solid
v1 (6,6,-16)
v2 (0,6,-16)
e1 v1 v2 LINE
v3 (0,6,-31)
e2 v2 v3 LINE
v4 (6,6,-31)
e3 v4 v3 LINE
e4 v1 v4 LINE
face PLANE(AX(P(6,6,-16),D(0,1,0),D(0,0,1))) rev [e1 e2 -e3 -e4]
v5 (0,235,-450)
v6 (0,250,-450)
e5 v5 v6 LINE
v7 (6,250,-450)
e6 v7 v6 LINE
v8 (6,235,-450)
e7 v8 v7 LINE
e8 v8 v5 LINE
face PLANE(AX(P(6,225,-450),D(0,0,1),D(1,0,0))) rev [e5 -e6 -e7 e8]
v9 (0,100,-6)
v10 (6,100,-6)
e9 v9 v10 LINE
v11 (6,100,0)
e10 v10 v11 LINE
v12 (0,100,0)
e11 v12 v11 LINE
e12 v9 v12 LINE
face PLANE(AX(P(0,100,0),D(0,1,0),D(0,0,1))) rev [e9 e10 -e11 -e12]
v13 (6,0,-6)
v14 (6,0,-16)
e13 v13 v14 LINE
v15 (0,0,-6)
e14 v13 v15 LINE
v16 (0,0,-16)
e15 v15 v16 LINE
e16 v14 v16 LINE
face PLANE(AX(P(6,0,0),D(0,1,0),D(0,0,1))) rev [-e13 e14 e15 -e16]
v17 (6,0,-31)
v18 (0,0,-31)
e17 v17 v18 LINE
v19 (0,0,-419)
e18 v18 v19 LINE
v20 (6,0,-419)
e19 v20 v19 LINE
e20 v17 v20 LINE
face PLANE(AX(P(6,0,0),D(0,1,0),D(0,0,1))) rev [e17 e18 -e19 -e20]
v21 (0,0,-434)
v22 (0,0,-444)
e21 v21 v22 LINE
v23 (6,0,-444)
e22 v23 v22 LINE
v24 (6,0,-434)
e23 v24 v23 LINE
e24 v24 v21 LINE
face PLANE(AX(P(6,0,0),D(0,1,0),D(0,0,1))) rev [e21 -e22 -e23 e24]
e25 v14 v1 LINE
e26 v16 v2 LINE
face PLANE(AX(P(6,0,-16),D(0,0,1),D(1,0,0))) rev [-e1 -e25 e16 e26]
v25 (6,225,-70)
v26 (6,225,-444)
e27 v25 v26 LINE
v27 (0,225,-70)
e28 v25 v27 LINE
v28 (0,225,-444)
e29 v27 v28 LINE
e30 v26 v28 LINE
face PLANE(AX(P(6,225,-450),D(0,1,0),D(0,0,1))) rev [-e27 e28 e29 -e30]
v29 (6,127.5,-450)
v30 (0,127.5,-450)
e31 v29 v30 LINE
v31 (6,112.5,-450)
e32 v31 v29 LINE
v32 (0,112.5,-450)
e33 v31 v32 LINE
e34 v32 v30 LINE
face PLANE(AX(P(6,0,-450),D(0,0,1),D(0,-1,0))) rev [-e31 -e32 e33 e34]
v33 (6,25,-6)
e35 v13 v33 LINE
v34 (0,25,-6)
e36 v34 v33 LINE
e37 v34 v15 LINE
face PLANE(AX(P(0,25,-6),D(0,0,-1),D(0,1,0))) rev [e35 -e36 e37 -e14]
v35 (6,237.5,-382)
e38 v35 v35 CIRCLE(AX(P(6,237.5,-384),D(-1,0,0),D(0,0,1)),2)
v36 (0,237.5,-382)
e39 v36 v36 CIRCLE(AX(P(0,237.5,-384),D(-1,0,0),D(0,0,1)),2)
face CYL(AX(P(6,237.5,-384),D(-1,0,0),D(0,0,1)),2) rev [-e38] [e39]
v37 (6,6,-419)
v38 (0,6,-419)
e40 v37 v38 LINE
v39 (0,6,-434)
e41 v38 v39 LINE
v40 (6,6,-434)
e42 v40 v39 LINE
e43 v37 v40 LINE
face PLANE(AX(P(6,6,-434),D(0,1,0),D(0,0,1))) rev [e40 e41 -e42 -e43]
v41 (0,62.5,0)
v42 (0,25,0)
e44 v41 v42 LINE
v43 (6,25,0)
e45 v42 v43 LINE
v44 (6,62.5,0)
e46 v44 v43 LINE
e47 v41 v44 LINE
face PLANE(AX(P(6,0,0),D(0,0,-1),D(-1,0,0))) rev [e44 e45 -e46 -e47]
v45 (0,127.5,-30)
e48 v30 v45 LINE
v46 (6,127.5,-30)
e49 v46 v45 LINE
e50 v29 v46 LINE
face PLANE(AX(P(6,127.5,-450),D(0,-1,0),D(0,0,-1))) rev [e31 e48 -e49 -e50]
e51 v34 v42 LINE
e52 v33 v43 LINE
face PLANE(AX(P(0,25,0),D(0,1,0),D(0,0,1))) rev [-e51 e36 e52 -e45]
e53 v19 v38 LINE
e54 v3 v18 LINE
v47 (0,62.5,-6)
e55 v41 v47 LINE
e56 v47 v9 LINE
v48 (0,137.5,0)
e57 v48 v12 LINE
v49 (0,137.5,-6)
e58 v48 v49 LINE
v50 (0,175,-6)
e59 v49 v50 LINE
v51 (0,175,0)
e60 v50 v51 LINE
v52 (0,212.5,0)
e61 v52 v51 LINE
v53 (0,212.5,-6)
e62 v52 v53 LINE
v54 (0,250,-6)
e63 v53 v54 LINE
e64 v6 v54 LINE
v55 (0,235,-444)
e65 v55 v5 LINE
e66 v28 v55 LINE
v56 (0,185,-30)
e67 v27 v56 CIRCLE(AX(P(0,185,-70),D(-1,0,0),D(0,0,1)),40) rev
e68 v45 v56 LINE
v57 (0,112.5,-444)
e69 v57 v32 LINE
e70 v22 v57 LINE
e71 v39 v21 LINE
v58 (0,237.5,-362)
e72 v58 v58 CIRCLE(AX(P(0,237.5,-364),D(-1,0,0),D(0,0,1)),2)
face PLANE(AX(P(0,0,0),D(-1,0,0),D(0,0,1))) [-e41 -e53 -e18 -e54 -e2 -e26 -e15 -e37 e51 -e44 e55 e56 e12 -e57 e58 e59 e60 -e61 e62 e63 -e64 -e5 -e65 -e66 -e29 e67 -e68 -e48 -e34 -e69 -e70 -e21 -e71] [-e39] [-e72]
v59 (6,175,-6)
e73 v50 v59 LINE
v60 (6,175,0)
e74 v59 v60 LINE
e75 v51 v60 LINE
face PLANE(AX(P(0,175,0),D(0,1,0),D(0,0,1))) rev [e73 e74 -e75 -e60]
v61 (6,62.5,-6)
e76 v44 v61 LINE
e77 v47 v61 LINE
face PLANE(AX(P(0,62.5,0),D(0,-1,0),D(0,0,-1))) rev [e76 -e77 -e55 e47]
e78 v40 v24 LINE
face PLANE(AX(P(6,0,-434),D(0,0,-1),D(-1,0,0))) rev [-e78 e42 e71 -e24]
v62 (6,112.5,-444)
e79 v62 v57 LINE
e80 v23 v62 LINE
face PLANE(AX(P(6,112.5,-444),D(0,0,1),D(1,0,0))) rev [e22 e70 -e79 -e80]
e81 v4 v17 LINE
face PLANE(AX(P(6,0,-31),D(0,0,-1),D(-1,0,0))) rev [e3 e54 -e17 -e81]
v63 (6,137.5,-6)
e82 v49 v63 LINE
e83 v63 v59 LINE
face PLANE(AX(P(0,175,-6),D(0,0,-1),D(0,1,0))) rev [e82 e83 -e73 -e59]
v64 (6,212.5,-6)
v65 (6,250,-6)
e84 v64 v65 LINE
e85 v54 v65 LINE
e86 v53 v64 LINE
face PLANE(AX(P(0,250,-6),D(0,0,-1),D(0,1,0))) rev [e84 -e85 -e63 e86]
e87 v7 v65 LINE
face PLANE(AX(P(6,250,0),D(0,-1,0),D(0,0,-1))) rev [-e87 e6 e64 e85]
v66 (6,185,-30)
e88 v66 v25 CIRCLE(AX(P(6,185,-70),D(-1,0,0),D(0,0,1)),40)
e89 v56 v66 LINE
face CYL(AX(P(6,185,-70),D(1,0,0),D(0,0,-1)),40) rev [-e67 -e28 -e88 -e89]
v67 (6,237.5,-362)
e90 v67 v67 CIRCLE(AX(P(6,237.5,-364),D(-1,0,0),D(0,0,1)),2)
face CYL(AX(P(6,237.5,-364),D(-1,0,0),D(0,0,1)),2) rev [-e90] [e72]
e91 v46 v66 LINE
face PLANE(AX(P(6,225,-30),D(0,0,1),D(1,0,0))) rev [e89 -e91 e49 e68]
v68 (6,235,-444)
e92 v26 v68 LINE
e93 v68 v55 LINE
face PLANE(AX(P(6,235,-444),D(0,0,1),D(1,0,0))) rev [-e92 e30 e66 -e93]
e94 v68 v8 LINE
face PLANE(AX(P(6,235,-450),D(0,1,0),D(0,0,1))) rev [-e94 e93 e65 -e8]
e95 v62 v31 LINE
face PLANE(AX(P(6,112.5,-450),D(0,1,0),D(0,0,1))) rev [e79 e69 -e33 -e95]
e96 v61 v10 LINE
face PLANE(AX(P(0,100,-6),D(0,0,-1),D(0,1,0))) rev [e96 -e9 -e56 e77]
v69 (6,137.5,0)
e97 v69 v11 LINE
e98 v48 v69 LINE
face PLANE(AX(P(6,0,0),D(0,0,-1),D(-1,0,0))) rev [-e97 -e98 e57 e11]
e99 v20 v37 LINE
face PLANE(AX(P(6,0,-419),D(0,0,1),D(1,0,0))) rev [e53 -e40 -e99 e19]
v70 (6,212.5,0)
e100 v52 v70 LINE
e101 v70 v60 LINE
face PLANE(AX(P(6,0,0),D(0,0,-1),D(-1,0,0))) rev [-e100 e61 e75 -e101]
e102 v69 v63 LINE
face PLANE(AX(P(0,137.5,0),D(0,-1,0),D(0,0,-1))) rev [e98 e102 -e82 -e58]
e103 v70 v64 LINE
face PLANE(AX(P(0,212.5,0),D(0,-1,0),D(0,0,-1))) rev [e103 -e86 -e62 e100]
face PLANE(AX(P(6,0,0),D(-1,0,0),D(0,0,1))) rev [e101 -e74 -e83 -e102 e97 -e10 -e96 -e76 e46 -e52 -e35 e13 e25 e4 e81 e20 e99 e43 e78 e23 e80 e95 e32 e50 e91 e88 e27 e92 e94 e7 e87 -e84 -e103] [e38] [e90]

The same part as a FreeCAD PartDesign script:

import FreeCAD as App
import Part
import Sketcher


def edges_at(feature, points):
    """Names of the edges that pass closest to the given points."""
    edges = feature.Shape.Edges
    near = lambda p: min(range(len(edges)), key=lambda i: edges[i].distToShape(Part.Vertex(*p))[0])
    return sorted({f"Edge{near(p) + 1}" for p in points})

doc = App.newDocument("Part")
body = doc.addObject("PartDesign::Body", "Body")

# Sketch on YZ plane
sketch1 = doc.addObject("Sketcher::SketchObject", "Sketch")
body.addObject(sketch1)
sketch1.AttachmentSupport = (doc.YZ_Plane, [""])
sketch1.MapMode = "FlatFace"
sketch1.addGeometry(Part.LineSegment(App.Vector(225, -450, 0), App.Vector(250, -450, 0)), False)
sketch1.addGeometry(Part.LineSegment(App.Vector(250, -450, 0), App.Vector(250, 0, 0)), False)
sketch1.addGeometry(Part.LineSegment(App.Vector(250, 0, 0), App.Vector(0, 0, 0)), False)
sketch1.addGeometry(Part.LineSegment(App.Vector(0, 0, 0), App.Vector(0, -450, 0)), False)
sketch1.addGeometry(Part.LineSegment(App.Vector(0, -450, 0), App.Vector(128, -450, 0)), False)
sketch1.addGeometry(Part.LineSegment(App.Vector(128, -450, 0), App.Vector(128, -30, 0)), False)
sketch1.addGeometry(Part.LineSegment(App.Vector(128, -30, 0), App.Vector(225, -30, 0)), False)
sketch1.addGeometry(Part.LineSegment(App.Vector(225, -30, 0), App.Vector(225, -450, 0)), False)
sketch1.addConstraint(Sketcher.Constraint("Coincident", 0, 2, 1, 1))
sketch1.addConstraint(Sketcher.Constraint("Coincident", 1, 2, 2, 1))
sketch1.addConstraint(Sketcher.Constraint("Coincident", 2, 2, 3, 1))
sketch1.addConstraint(Sketcher.Constraint("Coincident", 3, 2, 4, 1))
sketch1.addConstraint(Sketcher.Constraint("Coincident", 4, 2, 5, 1))
sketch1.addConstraint(Sketcher.Constraint("Coincident", 5, 2, 6, 1))
sketch1.addConstraint(Sketcher.Constraint("Coincident", 6, 2, 7, 1))
sketch1.addConstraint(Sketcher.Constraint("Coincident", 7, 2, 0, 1))
sketch1.addConstraint(Sketcher.Constraint("Horizontal", 0))
sketch1.addConstraint(Sketcher.Constraint("Vertical", 1))
sketch1.addConstraint(Sketcher.Constraint("Horizontal", 2))
sketch1.addConstraint(Sketcher.Constraint("Vertical", 3))
sketch1.addConstraint(Sketcher.Constraint("Horizontal", 4))
sketch1.addConstraint(Sketcher.Constraint("Vertical", 5))
sketch1.addConstraint(Sketcher.Constraint("Horizontal", 6))
sketch1.addConstraint(Sketcher.Constraint("Vertical", 7))
sketch1.addConstraint(Sketcher.Constraint("Coincident", 2, 2, -1, 1))
sketch1.addConstraint(Sketcher.Constraint("Horizontal", 0, 2, 3, 2))
sketch1.addConstraint(Sketcher.Constraint("DistanceX", 0, 1, 0, 2, 25.0))
sketch1.addConstraint(Sketcher.Constraint("DistanceX", 2, 2, 2, 1, 250.0))
sketch1.addConstraint(Sketcher.Constraint("DistanceY", 1, 1, 1, 2, 450.0))
sketch1.addConstraint(Sketcher.Constraint("DistanceY", 5, 1, 5, 2, 420.0))
sketch1.addConstraint(Sketcher.Constraint("DistanceX", 4, 1, 4, 2, 127.5))
pad1 = doc.addObject("PartDesign::Pad", "Pad")
body.addObject(pad1)
pad1.Profile = sketch1
pad1.Length = 6

# Sketch on YZ plane
sketch2 = doc.addObject("Sketcher::SketchObject", "Sketch001")
body.addObject(sketch2)
sketch2.AttachmentSupport = (doc.YZ_Plane, [""])
sketch2.MapMode = "FlatFace"
sketch2.AttachmentOffset = App.Placement(App.Vector(0, 0, 6), App.Rotation())
sketch2.addGeometry(Part.LineSegment(App.Vector(250, 0, 0), App.Vector(212, 0, 0)), False)
sketch2.addGeometry(Part.LineSegment(App.Vector(212, 0, 0), App.Vector(212, -6, 0)), False)
sketch2.addGeometry(Part.LineSegment(App.Vector(212, -6, 0), App.Vector(250, -6, 0)), False)
sketch2.addGeometry(Part.LineSegment(App.Vector(250, -6, 0), App.Vector(250, 0, 0)), False)
sketch2.addConstraint(Sketcher.Constraint("Coincident", 0, 2, 1, 1))
sketch2.addConstraint(Sketcher.Constraint("Coincident", 1, 2, 2, 1))
sketch2.addConstraint(Sketcher.Constraint("Coincident", 2, 2, 3, 1))
sketch2.addConstraint(Sketcher.Constraint("Coincident", 3, 2, 0, 1))
sketch2.addConstraint(Sketcher.Constraint("Horizontal", 0))
sketch2.addConstraint(Sketcher.Constraint("Vertical", 1))
sketch2.addConstraint(Sketcher.Constraint("Horizontal", 2))
sketch2.addConstraint(Sketcher.Constraint("Vertical", 3))
sketch2.addConstraint(Sketcher.Constraint("PointOnObject", 0, 2, -1))
sketch2.addConstraint(Sketcher.Constraint("DistanceY", 1, 2, 1, 1, 6.0))
sketch2.addConstraint(Sketcher.Constraint("DistanceX", 0, 2, 0, 1, 37.5))
sketch2.addConstraint(Sketcher.Constraint("DistanceX", -1, 1, 2, 2, 250.0))
pocket1 = doc.addObject("PartDesign::Pocket", "Pocket")
body.addObject(pocket1)
pocket1.Profile = sketch2
pocket1.Length = 6
doc.recompute()

linearpattern = doc.addObject("PartDesign::LinearPattern", "LinearPattern")
body.addObject(linearpattern)
linearpattern.Originals = [pocket1]
linearpattern.Direction = (doc.Y_Axis, [""])
linearpattern.Mode = "offset"
linearpattern.Offset = 75
linearpattern.Occurrences = 4
linearpattern.Reversed = True
body.Tip = linearpattern
doc.recompute()

fillet = doc.addObject("PartDesign::Fillet", "Fillet")
body.addObject(fillet)
fillet.Base = (linearpattern, edges_at(linearpattern, [(3, 225, -30)]))
fillet.Radius = 40

# Sketch on YZ plane
sketch3 = doc.addObject("Sketcher::SketchObject", "Sketch002")
body.addObject(sketch3)
sketch3.AttachmentSupport = (doc.YZ_Plane, [""])
sketch3.MapMode = "FlatFace"
sketch3.addGeometry(Part.LineSegment(App.Vector(235, -450, 0), App.Vector(225, -450, 0)), False)
sketch3.addGeometry(Part.LineSegment(App.Vector(225, -450, 0), App.Vector(225, -444, 0)), False)
sketch3.addGeometry(Part.LineSegment(App.Vector(225, -444, 0), App.Vector(235, -444, 0)), False)
sketch3.addGeometry(Part.LineSegment(App.Vector(235, -444, 0), App.Vector(235, -450, 0)), False)
sketch3.addGeometry(Part.LineSegment(App.Vector(112, -450, 0), App.Vector(0, -450, 0)), False)
sketch3.addGeometry(Part.LineSegment(App.Vector(0, -450, 0), App.Vector(0, -444, 0)), False)
sketch3.addGeometry(Part.LineSegment(App.Vector(0, -444, 0), App.Vector(112, -444, 0)), False)
sketch3.addGeometry(Part.LineSegment(App.Vector(112, -444, 0), App.Vector(112, -450, 0)), False)
sketch3.addConstraint(Sketcher.Constraint("Coincident", 0, 2, 1, 1))
sketch3.addConstraint(Sketcher.Constraint("Coincident", 1, 2, 2, 1))
sketch3.addConstraint(Sketcher.Constraint("Coincident", 2, 2, 3, 1))
sketch3.addConstraint(Sketcher.Constraint("Coincident", 3, 2, 0, 1))
sketch3.addConstraint(Sketcher.Constraint("Coincident", 4, 2, 5, 1))
sketch3.addConstraint(Sketcher.Constraint("Coincident", 5, 2, 6, 1))
sketch3.addConstraint(Sketcher.Constraint("Coincident", 6, 2, 7, 1))
sketch3.addConstraint(Sketcher.Constraint("Coincident", 7, 2, 4, 1))
sketch3.addConstraint(Sketcher.Constraint("Horizontal", 0))
sketch3.addConstraint(Sketcher.Constraint("Vertical", 1))
sketch3.addConstraint(Sketcher.Constraint("Horizontal", 2))
sketch3.addConstraint(Sketcher.Constraint("Vertical", 3))
sketch3.addConstraint(Sketcher.Constraint("Horizontal", 4))
sketch3.addConstraint(Sketcher.Constraint("Vertical", 5))
sketch3.addConstraint(Sketcher.Constraint("Horizontal", 6))
sketch3.addConstraint(Sketcher.Constraint("Vertical", 7))
sketch3.addConstraint(Sketcher.Constraint("PointOnObject", 4, 2, -2))
sketch3.addConstraint(Sketcher.Constraint("Horizontal", 3, 2, 4, 2))
sketch3.addConstraint(Sketcher.Constraint("Horizontal", 2, 2, 5, 2))
sketch3.addConstraint(Sketcher.Constraint("DistanceX", 0, 2, 0, 1, 10.0))
sketch3.addConstraint(Sketcher.Constraint("DistanceY", 1, 1, 1, 2, 6.0))
sketch3.addConstraint(Sketcher.Constraint("DistanceX", 4, 2, 4, 1, 112.5))
sketch3.addConstraint(Sketcher.Constraint("DistanceX", -1, 1, 0, 2, 225.0))
sketch3.addConstraint(Sketcher.Constraint("DistanceY", 0, 2, -1, 1, 450.0))
pocket2 = doc.addObject("PartDesign::Pocket", "Pocket001")
body.addObject(pocket2)
pocket2.Profile = sketch3
pocket2.Type = "ThroughAll"
pocket2.Reversed = True

# Sketch on YZ plane
sketch4 = doc.addObject("Sketcher::SketchObject", "Sketch003")
body.addObject(sketch4)
sketch4.AttachmentSupport = (doc.YZ_Plane, [""])
sketch4.MapMode = "FlatFace"
sketch4.addGeometry(Part.LineSegment(App.Vector(6, -31, 0), App.Vector(0, -31, 0)), False)
sketch4.addGeometry(Part.LineSegment(App.Vector(0, -31, 0), App.Vector(0, -16, 0)), False)
sketch4.addGeometry(Part.LineSegment(App.Vector(0, -16, 0), App.Vector(6, -16, 0)), False)
sketch4.addGeometry(Part.LineSegment(App.Vector(6, -16, 0), App.Vector(6, -31, 0)), False)
sketch4.addGeometry(Part.LineSegment(App.Vector(6, -434, 0), App.Vector(0, -434, 0)), False)
sketch4.addGeometry(Part.LineSegment(App.Vector(0, -434, 0), App.Vector(0, -419, 0)), False)
sketch4.addGeometry(Part.LineSegment(App.Vector(0, -419, 0), App.Vector(6, -419, 0)), False)
sketch4.addGeometry(Part.LineSegment(App.Vector(6, -419, 0), App.Vector(6, -434, 0)), False)
sketch4.addConstraint(Sketcher.Constraint("Coincident", 0, 2, 1, 1))
sketch4.addConstraint(Sketcher.Constraint("Coincident", 1, 2, 2, 1))
sketch4.addConstraint(Sketcher.Constraint("Coincident", 2, 2, 3, 1))
sketch4.addConstraint(Sketcher.Constraint("Coincident", 3, 2, 0, 1))
sketch4.addConstraint(Sketcher.Constraint("Coincident", 4, 2, 5, 1))
sketch4.addConstraint(Sketcher.Constraint("Coincident", 5, 2, 6, 1))
sketch4.addConstraint(Sketcher.Constraint("Coincident", 6, 2, 7, 1))
sketch4.addConstraint(Sketcher.Constraint("Coincident", 7, 2, 4, 1))
sketch4.addConstraint(Sketcher.Constraint("Horizontal", 0))
sketch4.addConstraint(Sketcher.Constraint("Vertical", 1))
sketch4.addConstraint(Sketcher.Constraint("Horizontal", 2))
sketch4.addConstraint(Sketcher.Constraint("Vertical", 3))
sketch4.addConstraint(Sketcher.Constraint("Horizontal", 4))
sketch4.addConstraint(Sketcher.Constraint("Vertical", 5))
sketch4.addConstraint(Sketcher.Constraint("Horizontal", 6))
sketch4.addConstraint(Sketcher.Constraint("Vertical", 7))
sketch4.addConstraint(Sketcher.Constraint("PointOnObject", 0, 2, -2))
sketch4.addConstraint(Sketcher.Constraint("PointOnObject", 4, 2, -2))
sketch4.addConstraint(Sketcher.Constraint("Vertical", 3, 2, 6, 2))
sketch4.addConstraint(Sketcher.Constraint("Equal", 3, 5))
sketch4.addConstraint(Sketcher.Constraint("DistanceX", 0, 2, 0, 1, 6.0))
sketch4.addConstraint(Sketcher.Constraint("DistanceY", 1, 1, 1, 2, 15.0))
sketch4.addConstraint(Sketcher.Constraint("DistanceY", 0, 2, -1, 1, 31.0))
sketch4.addConstraint(Sketcher.Constraint("DistanceY", 4, 2, -1, 1, 434.0))
pocket3 = doc.addObject("PartDesign::Pocket", "Pocket002")
body.addObject(pocket3)
pocket3.Profile = sketch4
pocket3.Type = "ThroughAll"
pocket3.Reversed = True

# Sketch on YZ plane
sketch5 = doc.addObject("Sketcher::SketchObject", "Sketch004")
body.addObject(sketch5)
sketch5.AttachmentSupport = (doc.YZ_Plane, [""])
sketch5.MapMode = "FlatFace"
sketch5.addGeometry(Part.Circle(App.Vector(237.5, -384, 0), App.Vector(0, 0, 1), 2), False)
sketch5.addGeometry(Part.Circle(App.Vector(237.5, -364, 0), App.Vector(0, 0, 1), 2), False)
sketch5.addConstraint(Sketcher.Constraint("Equal", 0, 1))
sketch5.addConstraint(Sketcher.Constraint("Vertical", 0, 3, 1, 3))
sketch5.addConstraint(Sketcher.Constraint("Diameter", 0, 4.0))
sketch5.addConstraint(Sketcher.Constraint("DistanceY", 0, 3, -1, 1, 384.0))
sketch5.addConstraint(Sketcher.Constraint("DistanceY", 1, 3, -1, 1, 364.0))
sketch5.addConstraint(Sketcher.Constraint("DistanceX", -1, 1, 0, 3, 237.5))
pocket4 = doc.addObject("PartDesign::Pocket", "Pocket003")
body.addObject(pocket4)
pocket4.Profile = sketch5
pocket4.Type = "ThroughAll"
pocket4.Reversed = True

doc.recompute()
